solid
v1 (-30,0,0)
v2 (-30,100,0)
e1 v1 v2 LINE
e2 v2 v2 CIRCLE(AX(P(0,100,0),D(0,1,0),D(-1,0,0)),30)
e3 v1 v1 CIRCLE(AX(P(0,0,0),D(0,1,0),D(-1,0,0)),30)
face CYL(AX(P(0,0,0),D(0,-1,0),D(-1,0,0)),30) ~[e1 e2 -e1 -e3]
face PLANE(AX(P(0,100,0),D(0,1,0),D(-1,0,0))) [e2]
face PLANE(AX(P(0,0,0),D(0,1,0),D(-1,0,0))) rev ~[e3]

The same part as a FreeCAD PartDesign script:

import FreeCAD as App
import Part
import Sketcher

V = App.Vector
Q = App.Units.Quantity

doc = App.newDocument("Part")
body = doc.addObject("PartDesign::Body", "Body")

sketch1 = body.newObject("Sketcher::SketchObject", "Sketch")
sketch1.AttachmentSupport = (doc.getObject("XZ_Plane"), [""])
sketch1.MapMode = "FlatFace"
sketch1.addGeometry(Part.Circle(V(0, 0, 0), V(0, 0, 1), 30), False)
sketch1.addConstraint(Sketcher.Constraint("Coincident", 0, 3, -1, 1))
sketch1.addConstraint(Sketcher.Constraint("Diameter", 0, Q("2.3622 in")))
pad1 = body.newObject("PartDesign::Pad", "Pad")
pad1.Profile = sketch1
pad1.Length = Q("3.9370079 in")
pad1.Reversed = True

doc.recompute()
